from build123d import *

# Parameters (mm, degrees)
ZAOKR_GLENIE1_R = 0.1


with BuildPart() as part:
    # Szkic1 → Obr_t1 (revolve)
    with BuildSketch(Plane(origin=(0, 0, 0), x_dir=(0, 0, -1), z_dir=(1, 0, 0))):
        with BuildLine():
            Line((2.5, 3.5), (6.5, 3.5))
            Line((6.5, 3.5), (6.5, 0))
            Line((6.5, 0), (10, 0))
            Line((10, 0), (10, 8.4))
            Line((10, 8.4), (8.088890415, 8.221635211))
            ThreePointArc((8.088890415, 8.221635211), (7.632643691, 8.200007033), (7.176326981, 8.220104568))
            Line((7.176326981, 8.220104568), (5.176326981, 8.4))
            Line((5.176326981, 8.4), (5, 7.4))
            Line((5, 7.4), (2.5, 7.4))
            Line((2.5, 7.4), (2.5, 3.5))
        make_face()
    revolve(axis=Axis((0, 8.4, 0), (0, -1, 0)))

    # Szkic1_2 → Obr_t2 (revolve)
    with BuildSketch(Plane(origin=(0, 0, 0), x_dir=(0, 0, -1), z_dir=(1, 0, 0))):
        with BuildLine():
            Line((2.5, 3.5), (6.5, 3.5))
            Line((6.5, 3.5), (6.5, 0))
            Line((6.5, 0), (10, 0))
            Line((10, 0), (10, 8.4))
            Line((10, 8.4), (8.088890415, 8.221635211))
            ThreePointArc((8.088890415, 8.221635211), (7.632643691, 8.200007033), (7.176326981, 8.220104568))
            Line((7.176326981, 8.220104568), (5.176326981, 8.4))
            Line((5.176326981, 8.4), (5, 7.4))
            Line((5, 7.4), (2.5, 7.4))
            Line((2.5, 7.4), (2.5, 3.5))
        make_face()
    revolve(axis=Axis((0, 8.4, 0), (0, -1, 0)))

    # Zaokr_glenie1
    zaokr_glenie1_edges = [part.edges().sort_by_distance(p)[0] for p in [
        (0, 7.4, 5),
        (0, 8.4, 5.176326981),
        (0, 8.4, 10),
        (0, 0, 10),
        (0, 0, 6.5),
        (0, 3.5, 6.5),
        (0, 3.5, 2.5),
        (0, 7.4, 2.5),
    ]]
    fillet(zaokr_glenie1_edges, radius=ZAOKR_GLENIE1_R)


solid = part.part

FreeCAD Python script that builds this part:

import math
import FreeCAD as App
import Part
import Sketcher
from FreeCAD import Vector
Q = App.Units.Quantity


def edges_at(feature, points):
    """Names of the edges that pass closest to the given points."""
    edges = feature.Shape.Edges
    near = lambda p: min(range(len(edges)), key=lambda i: edges[i].distToShape(Part.Vertex(*p))[0])
    return sorted({f"Edge{near(p) + 1}" for p in points})

doc = App.newDocument("Part")
body = doc.addObject("PartDesign::Body", "Body")

sketch1 = body.newObject("Sketcher::SketchObject", "Sketch")
sketch1.AttachmentSupport = (doc.getObject("YZ_Plane"), [""])
sketch1.MapMode = "FlatFace"
sketch1.addGeometry([
    Part.LineSegment(Vector(3.5, -2.5, 0), Vector(3.5, -6.5, 0)),
    Part.LineSegment(Vector(3.5, -6.5, 0), Vector(0, -6.5, 0)),
    Part.LineSegment(Vector(0, -6.5, 0), Vector(0, -10, 0)),
    Part.LineSegment(Vector(0, -10, 0), Vector(8.4, -10, 0)),
    Part.LineSegment(Vector(8.4, -10, 0), Vector(8.2, -8.1, 0)),
    Part.ArcOfCircle(Part.Circle(Vector(13.2, -7.6, 0), Vector(0, 0, 1), 5), math.radians(174.86), math.radians(185.33)),
    Part.LineSegment(Vector(8.2, -7.2, 0), Vector(8.4, -5.2, 0)),
    Part.LineSegment(Vector(8.4, -5.2, 0), Vector(7.4, -5, 0)),
    Part.LineSegment(Vector(7.4, -5, 0), Vector(7.4, -2.5, 0)),
    Part.LineSegment(Vector(7.4, -2.5, 0), Vector(3.5, -2.5, 0)),
], False)
sketch1.addConstraint([
    Sketcher.Constraint("Coincident", 0, 2, 1, 1),
    Sketcher.Constraint("Coincident", 1, 2, 2, 1),
    Sketcher.Constraint("Coincident", 2, 2, 3, 1),
    Sketcher.Constraint("Coincident", 3, 2, 4, 1),
    Sketcher.Constraint("Tangent", 4, 2, 5, 2),
    Sketcher.Constraint("Tangent", 5, 1, 6, 1),
    Sketcher.Constraint("Coincident", 6, 2, 7, 1),
    Sketcher.Constraint("Coincident", 7, 2, 8, 1),
    Sketcher.Constraint("Coincident", 8, 2, 9, 1),
    Sketcher.Constraint("Coincident", 9, 2, 0, 1),
    Sketcher.Constraint("Vertical", 0),
    Sketcher.Constraint("Horizontal", 1),
    Sketcher.Constraint("Vertical", 2),
    Sketcher.Constraint("Horizontal", 3),
    Sketcher.Constraint("Vertical", 8),
    Sketcher.Constraint("Horizontal", 9),
    Sketcher.Constraint("PointOnObject", 1, 2, -2),
    Sketcher.Constraint("Vertical", 3, 2, 6, 2),
    Sketcher.Constraint("Equal", 1, 2),
    Sketcher.Constraint("Radius", 5, Q("5 mm")),
    Sketcher.Constraint("DistanceY", 0, 2, 0, 1, Q("4 mm")),
    Sketcher.Constraint("Angle", 7, Q("170 deg")),
    Sketcher.Constraint("DistanceX", 1, 2, 1, 1, Q("3.5 mm")),
    Sketcher.Constraint("DistanceX", 3, 1, 3, 2, Q("8.4 mm")),
    Sketcher.Constraint("DistanceX", 9, 2, 9, 1, Q("3.9 mm")),
    Sketcher.Constraint("DistanceY", 8, 1, 8, 2, Q("2.5 mm")),
    Sketcher.Constraint("DistanceY", 2, 2, -1, 1, Q("10 mm")),
    Sketcher.Constraint("DistanceY", 5, 1, 6, 2, Q("2 mm")),
    Sketcher.Constraint("DistanceX", -1, 1, 5, 3, Q("13.2 mm")),
])
revolution = body.newObject("PartDesign::Revolution", "Revolution")
revolution.Profile = sketch1
revolution.ReferenceAxis = (sketch1, ["H_Axis"])
revolution.Angle = 360

sketch2 = body.newObject("Sketcher::SketchObject", "Sketch001")
sketch2.AttachmentSupport = (doc.getObject("YZ_Plane"), [""])
sketch2.MapMode = "FlatFace"
sketch2.addGeometry([
    Part.LineSegment(Vector(3.5, -2.5, 0), Vector(3.5, -6.5, 0)),
    Part.LineSegment(Vector(3.5, -6.5, 0), Vector(0, -6.5, 0)),
    Part.LineSegment(Vector(0, -6.5, 0), Vector(0, -10, 0)),
    Part.LineSegment(Vector(0, -10, 0), Vector(8.4, -10, 0)),
    Part.LineSegment(Vector(8.4, -10, 0), Vector(8.2, -8.1, 0)),
    Part.ArcOfCircle(Part.Circle(Vector(13.2, -7.6, 0), Vector(0, 0, 1), 5), math.radians(174.86), math.radians(185.33)),
    Part.LineSegment(Vector(8.2, -7.2, 0), Vector(8.4, -5.2, 0)),
    Part.LineSegment(Vector(8.4, -5.2, 0), Vector(7.4, -5, 0)),
    Part.LineSegment(Vector(7.4, -5, 0), Vector(7.4, -2.5, 0)),
    Part.LineSegment(Vector(7.4, -2.5, 0), Vector(3.5, -2.5, 0)),
], False)
sketch2.addConstraint([
    Sketcher.Constraint("Coincident", 0, 2, 1, 1),
    Sketcher.Constraint("Coincident", 1, 2, 2, 1),
    Sketcher.Constraint("Coincident", 2, 2, 3, 1),
    Sketcher.Constraint("Coincident", 3, 2, 4, 1),
    Sketcher.Constraint("Tangent", 4, 2, 5, 2),
    Sketcher.Constraint("Tangent", 5, 1, 6, 1),
    Sketcher.Constraint("Coincident", 6, 2, 7, 1),
    Sketcher.Constraint("Coincident", 7, 2, 8, 1),
    Sketcher.Constraint("Coincident", 8, 2, 9, 1),
    Sketcher.Constraint("Coincident", 9, 2, 0, 1),
    Sketcher.Constraint("Vertical", 0),
    Sketcher.Constraint("Horizontal", 1),
    Sketcher.Constraint("Vertical", 2),
    Sketcher.Constraint("Horizontal", 3),
    Sketcher.Constraint("Vertical", 8),
    Sketcher.Constraint("Horizontal", 9),
    Sketcher.Constraint("PointOnObject", 1, 2, -2),
    Sketcher.Constraint("Vertical", 3, 2, 6, 2),
    Sketcher.Constraint("Equal", 1, 2),
    Sketcher.Constraint("Radius", 5, Q("5 mm")),
    Sketcher.Constraint("DistanceY", 0, 2, 0, 1, Q("4 mm")),
    Sketcher.Constraint("Angle", 7, Q("170 deg")),
    Sketcher.Constraint("DistanceX", 1, 2, 1, 1, Q("3.5 mm")),
    Sketcher.Constraint("DistanceX", 3, 1, 3, 2, Q("8.4 mm")),
    Sketcher.Constraint("DistanceX", 9, 2, 9, 1, Q("3.9 mm")),
    Sketcher.Constraint("DistanceY", 8, 1, 8, 2, Q("2.5 mm")),
    Sketcher.Constraint("DistanceY", 2, 2, -1, 1, Q("10 mm")),
    Sketcher.Constraint("DistanceY", 5, 1, 6, 2, Q("2 mm")),
    Sketcher.Constraint("DistanceX", -1, 1, 5, 3, Q("13.2 mm")),
])
revolution2 = body.newObject("PartDesign::Revolution", "Revolution001")
revolution2.Profile = sketch2
revolution2.ReferenceAxis = (sketch2, ["H_Axis"])
revolution2.Angle = 360
doc.recompute()

fillet = body.newObject("PartDesign::Fillet", "Fillet")
fillet.Base = (revolution2, edges_at(revolution2, [
    (0, 7.4, 5),
    (0, 8.4, 5.176),
    (0, 8.4, 10),
    (0, 0, 10),
    (0, 0, 6.5),
    (0, 3.5, 6.5),
    (0, 3.5, 2.5),
    (0, 7.4, 2.5),
]))
fillet.Radius = 0.1

doc.recompute()
